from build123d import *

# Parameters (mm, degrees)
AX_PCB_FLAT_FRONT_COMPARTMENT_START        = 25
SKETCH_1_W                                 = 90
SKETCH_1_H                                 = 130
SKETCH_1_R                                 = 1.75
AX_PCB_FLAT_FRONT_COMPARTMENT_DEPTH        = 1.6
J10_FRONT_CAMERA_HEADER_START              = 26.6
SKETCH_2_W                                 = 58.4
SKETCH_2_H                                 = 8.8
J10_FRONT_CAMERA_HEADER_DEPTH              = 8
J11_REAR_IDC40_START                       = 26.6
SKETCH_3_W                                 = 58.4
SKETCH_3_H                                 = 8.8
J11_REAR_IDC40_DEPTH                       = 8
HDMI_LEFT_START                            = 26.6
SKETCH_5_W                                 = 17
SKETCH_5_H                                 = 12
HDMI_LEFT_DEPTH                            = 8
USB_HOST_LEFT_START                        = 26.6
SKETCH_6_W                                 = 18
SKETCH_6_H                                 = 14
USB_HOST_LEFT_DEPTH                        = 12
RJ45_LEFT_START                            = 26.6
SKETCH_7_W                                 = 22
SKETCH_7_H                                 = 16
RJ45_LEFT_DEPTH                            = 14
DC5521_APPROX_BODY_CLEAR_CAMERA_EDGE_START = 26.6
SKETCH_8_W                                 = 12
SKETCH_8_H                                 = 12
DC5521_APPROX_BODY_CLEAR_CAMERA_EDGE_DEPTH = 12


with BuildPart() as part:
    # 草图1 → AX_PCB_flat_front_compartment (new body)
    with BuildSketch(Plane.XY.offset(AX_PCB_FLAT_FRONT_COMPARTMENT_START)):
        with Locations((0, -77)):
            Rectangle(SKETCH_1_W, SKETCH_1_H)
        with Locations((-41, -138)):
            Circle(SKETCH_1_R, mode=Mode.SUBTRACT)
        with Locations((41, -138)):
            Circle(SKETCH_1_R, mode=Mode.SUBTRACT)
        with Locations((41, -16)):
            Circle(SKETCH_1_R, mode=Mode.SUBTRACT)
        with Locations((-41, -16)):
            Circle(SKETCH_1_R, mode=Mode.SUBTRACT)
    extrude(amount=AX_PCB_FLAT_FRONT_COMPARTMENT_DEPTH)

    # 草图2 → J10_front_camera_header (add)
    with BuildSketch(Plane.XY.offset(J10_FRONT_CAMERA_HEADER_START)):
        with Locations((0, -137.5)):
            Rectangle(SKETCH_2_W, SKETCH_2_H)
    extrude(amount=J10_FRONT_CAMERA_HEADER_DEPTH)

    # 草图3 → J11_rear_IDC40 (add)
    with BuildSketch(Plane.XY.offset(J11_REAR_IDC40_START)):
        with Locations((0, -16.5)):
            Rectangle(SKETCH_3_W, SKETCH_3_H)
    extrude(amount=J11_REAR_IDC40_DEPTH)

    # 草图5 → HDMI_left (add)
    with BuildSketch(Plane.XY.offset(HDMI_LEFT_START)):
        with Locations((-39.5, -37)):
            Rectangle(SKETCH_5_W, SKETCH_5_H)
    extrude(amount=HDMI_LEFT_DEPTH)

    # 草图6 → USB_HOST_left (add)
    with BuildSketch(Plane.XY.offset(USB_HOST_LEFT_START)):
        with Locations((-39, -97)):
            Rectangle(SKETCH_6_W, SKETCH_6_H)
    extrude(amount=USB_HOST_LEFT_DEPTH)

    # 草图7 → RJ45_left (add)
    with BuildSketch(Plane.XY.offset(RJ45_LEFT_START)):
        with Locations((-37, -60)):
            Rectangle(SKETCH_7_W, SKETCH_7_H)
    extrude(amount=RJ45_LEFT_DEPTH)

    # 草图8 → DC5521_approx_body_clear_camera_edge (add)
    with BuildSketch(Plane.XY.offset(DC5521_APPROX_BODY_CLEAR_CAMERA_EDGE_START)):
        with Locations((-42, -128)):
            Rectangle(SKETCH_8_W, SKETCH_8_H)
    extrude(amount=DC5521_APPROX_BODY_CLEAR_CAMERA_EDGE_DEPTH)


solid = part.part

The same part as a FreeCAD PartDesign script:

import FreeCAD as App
import Part
import Sketcher

doc = App.newDocument("Part")
body = doc.addObject("PartDesign::Body", "Body")

# Sketch on XY plane
sketch1 = body.newObject("Sketcher::SketchObject", "Sketch")
sketch1.AttachmentSupport = (doc.getObject("XY_Plane"), [""])
sketch1.MapMode = "FlatFace"
sketch1.AttachmentOffset = App.Placement(App.Vector(0, 0, 25), App.Rotation())
sketch1.addGeometry([
    Part.LineSegment(App.Vector(-45, -12, 0), App.Vector(-45, -142, 0)),  # 0
    Part.LineSegment(App.Vector(-45, -142, 0), App.Vector(45, -142, 0)),  # 1
    Part.LineSegment(App.Vector(45, -142, 0), App.Vector(45, -12, 0)),  # 2
    Part.LineSegment(App.Vector(45, -12, 0), App.Vector(-45, -12, 0)),  # 3
    Part.Circle(App.Vector(-41, -138, 0), App.Vector(0, 0, 1), 1.75),  # 4
    Part.Circle(App.Vector(41, -138, 0), App.Vector(0, 0, 1), 1.75),  # 5
    Part.Circle(App.Vector(-41, -16, 0), App.Vector(0, 0, 1), 1.75),  # 6
    Part.Circle(App.Vector(41, -16, 0), App.Vector(0, 0, 1), 1.75),  # 7
], False)
sketch1.addConstraint([
    Sketcher.Constraint("Coincident", 0, 2, 1, 1),
    Sketcher.Constraint("Coincident", 1, 2, 2, 1),
    Sketcher.Constraint("Coincident", 2, 2, 3, 1),
    Sketcher.Constraint("Coincident", 3, 2, 0, 1),
    Sketcher.Constraint("Vertical", 0),
    Sketcher.Constraint("Horizontal", 1),
    Sketcher.Constraint("Vertical", 2),
    Sketcher.Constraint("Horizontal", 3),
    Sketcher.Constraint("Equal", 4, 5),
    Sketcher.Constraint("Equal", 5, 6),
    Sketcher.Constraint("Equal", 6, 7),
    Sketcher.Constraint("Symmetric", 4, 3, 5, 3, -2),
    Sketcher.Constraint("Symmetric", 6, 3, 7, 3, -2),
    Sketcher.Constraint("Vertical", 4, 3, 6, 3),
    Sketcher.Constraint("Diameter", 4, 3.5),
    Sketcher.Constraint("DistanceX", 1, 1, 1, 2, 90.0),
    Sketcher.Constraint("DistanceY", 0, 2, 0, 1, 130.0),
    Sketcher.Constraint("DistanceX", 4, 3, -1, 1, 41.0),
    Sketcher.Constraint("DistanceY", 4, 3, -1, 1, 138.0),
    Sketcher.Constraint("DistanceY", 6, 3, -1, 1, 16.0),
    Sketcher.Constraint("DistanceX", 0, 2, -1, 1, 45.0),
    Sketcher.Constraint("DistanceY", 0, 2, -1, 1, 142.0),
])
pad1 = body.newObject("PartDesign::Pad", "Pad")
pad1.Profile = sketch1
pad1.Length = 1.6

# Sketch on XY plane
sketch2 = body.newObject("Sketcher::SketchObject", "Sketch001")
sketch2.AttachmentSupport = (doc.getObject("XY_Plane"), [""])
sketch2.MapMode = "FlatFace"
sketch2.AttachmentOffset = App.Placement(App.Vector(0, 0, 26.6), App.Rotation())
sketch2.addGeometry([
    Part.LineSegment(App.Vector(-29.2, -133.1, 0), App.Vector(-29.2, -141.9, 0)),
    Part.LineSegment(App.Vector(-29.2, -141.9, 0), App.Vector(29.2, -141.9, 0)),
    Part.LineSegment(App.Vector(29.2, -141.9, 0), App.Vector(29.2, -133.1, 0)),
    Part.LineSegment(App.Vector(29.2, -133.1, 0), App.Vector(-29.2, -133.1, 0)),
], False)
sketch2.addConstraint([
    Sketcher.Constraint("Coincident", 0, 2, 1, 1),
    Sketcher.Constraint("Coincident", 1, 2, 2, 1),
    Sketcher.Constraint("Coincident", 2, 2, 3, 1),
    Sketcher.Constraint("Coincident", 3, 2, 0, 1),
    Sketcher.Constraint("Vertical", 0),
    Sketcher.Constraint("Horizontal", 1),
    Sketcher.Constraint("Vertical", 2),
    Sketcher.Constraint("Horizontal", 3),
    Sketcher.Constraint("DistanceX", 1, 1, 1, 2, 58.4),
    Sketcher.Constraint("DistanceY", 0, 2, 0, 1, 8.8),
    Sketcher.Constraint("DistanceX", 0, 2, -1, 1, 29.2),
    Sketcher.Constraint("DistanceY", 0, 2, -1, 1, 141.9),
])
pad2 = body.newObject("PartDesign::Pad", "Pad001")
pad2.Profile = sketch2
pad2.Length = 8

# Sketch on XY plane
sketch3 = body.newObject("Sketcher::SketchObject", "Sketch002")
sketch3.AttachmentSupport = (doc.getObject("XY_Plane"), [""])
sketch3.MapMode = "FlatFace"
sketch3.AttachmentOffset = App.Placement(App.Vector(0, 0, 26.6), App.Rotation())
sketch3.addGeometry([
    Part.LineSegment(App.Vector(-29.2, -12.1, 0), App.Vector(-29.2, -20.9, 0)),
    Part.LineSegment(App.Vector(-29.2, -20.9, 0), App.Vector(29.2, -20.9, 0)),
    Part.LineSegment(App.Vector(29.2, -20.9, 0), App.Vector(29.2, -12.1, 0)),
    Part.LineSegment(App.Vector(29.2, -12.1, 0), App.Vector(-29.2, -12.1, 0)),
], False)
sketch3.addConstraint([
    Sketcher.Constraint("Coincident", 0, 2, 1, 1),
    Sketcher.Constraint("Coincident", 1, 2, 2, 1),
    Sketcher.Constraint("Coincident", 2, 2, 3, 1),
    Sketcher.Constraint("Coincident", 3, 2, 0, 1),
    Sketcher.Constraint("Vertical", 0),
    Sketcher.Constraint("Horizontal", 1),
    Sketcher.Constraint("Vertical", 2),
    Sketcher.Constraint("Horizontal", 3),
    Sketcher.Constraint("DistanceX", 1, 1, 1, 2, 58.4),
    Sketcher.Constraint("DistanceY", 0, 2, 0, 1, 8.8),
    Sketcher.Constraint("DistanceX", 0, 2, -1, 1, 29.2),
    Sketcher.Constraint("DistanceY", 0, 2, -1, 1, 20.9),
])
pad3 = body.newObject("PartDesign::Pad", "Pad002")
pad3.Profile = sketch3
pad3.Length = 8

# Sketch on XY plane
sketch4 = body.newObject("Sketcher::SketchObject", "Sketch003")
sketch4.AttachmentSupport = (doc.getObject("XY_Plane"), [""])
sketch4.MapMode = "FlatFace"
sketch4.AttachmentOffset = App.Placement(App.Vector(0, 0, 26.6), App.Rotation())
sketch4.addGeometry([
    Part.LineSegment(App.Vector(-48, -31, 0), App.Vector(-48, -43, 0)),
    Part.LineSegment(App.Vector(-48, -43, 0), App.Vector(-31, -43, 0)),
    Part.LineSegment(App.Vector(-31, -43, 0), App.Vector(-31, -31, 0)),
    Part.LineSegment(App.Vector(-31, -31, 0), App.Vector(-48, -31, 0)),
], False)
sketch4.addConstraint([
    Sketcher.Constraint("Coincident", 0, 2, 1, 1),
    Sketcher.Constraint("Coincident", 1, 2, 2, 1),
    Sketcher.Constraint("Coincident", 2, 2, 3, 1),
    Sketcher.Constraint("Coincident", 3, 2, 0, 1),
    Sketcher.Constraint("Vertical", 0),
    Sketcher.Constraint("Horizontal", 1),
    Sketcher.Constraint("Vertical", 2),
    Sketcher.Constraint("Horizontal", 3),
    Sketcher.Constraint("DistanceX", 1, 1, 1, 2, 17.0),
    Sketcher.Constraint("DistanceY", 0, 2, 0, 1, 12.0),
    Sketcher.Constraint("DistanceX", 0, 2, -1, 1, 48.0),
    Sketcher.Constraint("DistanceY", 0, 2, -1, 1, 43.0),
])
pad4 = body.newObject("PartDesign::Pad", "Pad003")
pad4.Profile = sketch4
pad4.Length = 8

# Sketch on XY plane
sketch5 = body.newObject("Sketcher::SketchObject", "Sketch004")
sketch5.AttachmentSupport = (doc.getObject("XY_Plane"), [""])
sketch5.MapMode = "FlatFace"
sketch5.AttachmentOffset = App.Placement(App.Vector(0, 0, 26.6), App.Rotation())
sketch5.addGeometry([
    Part.LineSegment(App.Vector(-48, -90, 0), App.Vector(-48, -104, 0)),
    Part.LineSegment(App.Vector(-48, -104, 0), App.Vector(-30, -104, 0)),
    Part.LineSegment(App.Vector(-30, -104, 0), App.Vector(-30, -90, 0)),
    Part.LineSegment(App.Vector(-30, -90, 0), App.Vector(-48, -90, 0)),
], False)
sketch5.addConstraint([
    Sketcher.Constraint("Coincident", 0, 2, 1, 1),
    Sketcher.Constraint("Coincident", 1, 2, 2, 1),
    Sketcher.Constraint("Coincident", 2, 2, 3, 1),
    Sketcher.Constraint("Coincident", 3, 2, 0, 1),
    Sketcher.Constraint("Vertical", 0),
    Sketcher.Constraint("Horizontal", 1),
    Sketcher.Constraint("Vertical", 2),
    Sketcher.Constraint("Horizontal", 3),
    Sketcher.Constraint("DistanceX", 1, 1, 1, 2, 18.0),
    Sketcher.Constraint("DistanceY", 0, 2, 0, 1, 14.0),
    Sketcher.Constraint("DistanceX", 0, 2, -1, 1, 48.0),
    Sketcher.Constraint("DistanceY", 0, 2, -1, 1, 104.0),
])
pad5 = body.newObject("PartDesign::Pad", "Pad004")
pad5.Profile = sketch5
pad5.Length = 12

# Sketch on XY plane
sketch6 = body.newObject("Sketcher::SketchObject", "Sketch005")
sketch6.AttachmentSupport = (doc.getObject("XY_Plane"), [""])
sketch6.MapMode = "FlatFace"
sketch6.AttachmentOffset = App.Placement(App.Vector(0, 0, 26.6), App.Rotation())
sketch6.addGeometry([
    Part.LineSegment(App.Vector(-48, -52, 0), App.Vector(-48, -68, 0)),
    Part.LineSegment(App.Vector(-48, -68, 0), App.Vector(-26, -68, 0)),
    Part.LineSegment(App.Vector(-26, -68, 0), App.Vector(-26, -52, 0)),
    Part.LineSegment(App.Vector(-26, -52, 0), App.Vector(-48, -52, 0)),
], False)
sketch6.addConstraint([
    Sketcher.Constraint("Coincident", 0, 2, 1, 1),
    Sketcher.Constraint("Coincident", 1, 2, 2, 1),
    Sketcher.Constraint("Coincident", 2, 2, 3, 1),
    Sketcher.Constraint("Coincident", 3, 2, 0, 1),
    Sketcher.Constraint("Vertical", 0),
    Sketcher.Constraint("Horizontal", 1),
    Sketcher.Constraint("Vertical", 2),
    Sketcher.Constraint("Horizontal", 3),
    Sketcher.Constraint("DistanceX", 1, 1, 1, 2, 22.0),
    Sketcher.Constraint("DistanceY", 0, 2, 0, 1, 16.0),
    Sketcher.Constraint("DistanceX", 0, 2, -1, 1, 48.0),
    Sketcher.Constraint("DistanceY", 0, 2, -1, 1, 68.0),
])
pad6 = body.newObject("PartDesign::Pad", "Pad005")
pad6.Profile = sketch6
pad6.Length = 14

# Sketch on XY plane
sketch7 = body.newObject("Sketcher::SketchObject", "Sketch006")
sketch7.AttachmentSupport = (doc.getObject("XY_Plane"), [""])
sketch7.MapMode = "FlatFace"
sketch7.AttachmentOffset = App.Placement(App.Vector(0, 0, 26.6), App.Rotation())
sketch7.addGeometry([
    Part.LineSegment(App.Vector(-48, -122, 0), App.Vector(-48, -134, 0)),
    Part.LineSegment(App.Vector(-48, -134, 0), App.Vector(-36, -134, 0)),
    Part.LineSegment(App.Vector(-36, -134, 0), App.Vector(-36, -122, 0)),
    Part.LineSegment(App.Vector(-36, -122, 0), App.Vector(-48, -122, 0)),
], False)
sketch7.addConstraint([
    Sketcher.Constraint("Coincident", 0, 2, 1, 1),
    Sketcher.Constraint("Coincident", 1, 2, 2, 1),
    Sketcher.Constraint("Coincident", 2, 2, 3, 1),
    Sketcher.Constraint("Coincident", 3, 2, 0, 1),
    Sketcher.Constraint("Vertical", 0),
    Sketcher.Constraint("Horizontal", 1),
    Sketcher.Constraint("Vertical", 2),
    Sketcher.Constraint("Horizontal", 3),
    Sketcher.Constraint("Equal", 3, 0),
    Sketcher.Constraint("DistanceX", 1, 1, 1, 2, 12.0),
    Sketcher.Constraint("DistanceX", 0, 2, -1, 1, 48.0),
    Sketcher.Constraint("DistanceY", 0, 2, -1, 1, 134.0),
])
pad7 = body.newObject("PartDesign::Pad", "Pad006")
pad7.Profile = sketch7
pad7.Length = 12

doc.recompute()
